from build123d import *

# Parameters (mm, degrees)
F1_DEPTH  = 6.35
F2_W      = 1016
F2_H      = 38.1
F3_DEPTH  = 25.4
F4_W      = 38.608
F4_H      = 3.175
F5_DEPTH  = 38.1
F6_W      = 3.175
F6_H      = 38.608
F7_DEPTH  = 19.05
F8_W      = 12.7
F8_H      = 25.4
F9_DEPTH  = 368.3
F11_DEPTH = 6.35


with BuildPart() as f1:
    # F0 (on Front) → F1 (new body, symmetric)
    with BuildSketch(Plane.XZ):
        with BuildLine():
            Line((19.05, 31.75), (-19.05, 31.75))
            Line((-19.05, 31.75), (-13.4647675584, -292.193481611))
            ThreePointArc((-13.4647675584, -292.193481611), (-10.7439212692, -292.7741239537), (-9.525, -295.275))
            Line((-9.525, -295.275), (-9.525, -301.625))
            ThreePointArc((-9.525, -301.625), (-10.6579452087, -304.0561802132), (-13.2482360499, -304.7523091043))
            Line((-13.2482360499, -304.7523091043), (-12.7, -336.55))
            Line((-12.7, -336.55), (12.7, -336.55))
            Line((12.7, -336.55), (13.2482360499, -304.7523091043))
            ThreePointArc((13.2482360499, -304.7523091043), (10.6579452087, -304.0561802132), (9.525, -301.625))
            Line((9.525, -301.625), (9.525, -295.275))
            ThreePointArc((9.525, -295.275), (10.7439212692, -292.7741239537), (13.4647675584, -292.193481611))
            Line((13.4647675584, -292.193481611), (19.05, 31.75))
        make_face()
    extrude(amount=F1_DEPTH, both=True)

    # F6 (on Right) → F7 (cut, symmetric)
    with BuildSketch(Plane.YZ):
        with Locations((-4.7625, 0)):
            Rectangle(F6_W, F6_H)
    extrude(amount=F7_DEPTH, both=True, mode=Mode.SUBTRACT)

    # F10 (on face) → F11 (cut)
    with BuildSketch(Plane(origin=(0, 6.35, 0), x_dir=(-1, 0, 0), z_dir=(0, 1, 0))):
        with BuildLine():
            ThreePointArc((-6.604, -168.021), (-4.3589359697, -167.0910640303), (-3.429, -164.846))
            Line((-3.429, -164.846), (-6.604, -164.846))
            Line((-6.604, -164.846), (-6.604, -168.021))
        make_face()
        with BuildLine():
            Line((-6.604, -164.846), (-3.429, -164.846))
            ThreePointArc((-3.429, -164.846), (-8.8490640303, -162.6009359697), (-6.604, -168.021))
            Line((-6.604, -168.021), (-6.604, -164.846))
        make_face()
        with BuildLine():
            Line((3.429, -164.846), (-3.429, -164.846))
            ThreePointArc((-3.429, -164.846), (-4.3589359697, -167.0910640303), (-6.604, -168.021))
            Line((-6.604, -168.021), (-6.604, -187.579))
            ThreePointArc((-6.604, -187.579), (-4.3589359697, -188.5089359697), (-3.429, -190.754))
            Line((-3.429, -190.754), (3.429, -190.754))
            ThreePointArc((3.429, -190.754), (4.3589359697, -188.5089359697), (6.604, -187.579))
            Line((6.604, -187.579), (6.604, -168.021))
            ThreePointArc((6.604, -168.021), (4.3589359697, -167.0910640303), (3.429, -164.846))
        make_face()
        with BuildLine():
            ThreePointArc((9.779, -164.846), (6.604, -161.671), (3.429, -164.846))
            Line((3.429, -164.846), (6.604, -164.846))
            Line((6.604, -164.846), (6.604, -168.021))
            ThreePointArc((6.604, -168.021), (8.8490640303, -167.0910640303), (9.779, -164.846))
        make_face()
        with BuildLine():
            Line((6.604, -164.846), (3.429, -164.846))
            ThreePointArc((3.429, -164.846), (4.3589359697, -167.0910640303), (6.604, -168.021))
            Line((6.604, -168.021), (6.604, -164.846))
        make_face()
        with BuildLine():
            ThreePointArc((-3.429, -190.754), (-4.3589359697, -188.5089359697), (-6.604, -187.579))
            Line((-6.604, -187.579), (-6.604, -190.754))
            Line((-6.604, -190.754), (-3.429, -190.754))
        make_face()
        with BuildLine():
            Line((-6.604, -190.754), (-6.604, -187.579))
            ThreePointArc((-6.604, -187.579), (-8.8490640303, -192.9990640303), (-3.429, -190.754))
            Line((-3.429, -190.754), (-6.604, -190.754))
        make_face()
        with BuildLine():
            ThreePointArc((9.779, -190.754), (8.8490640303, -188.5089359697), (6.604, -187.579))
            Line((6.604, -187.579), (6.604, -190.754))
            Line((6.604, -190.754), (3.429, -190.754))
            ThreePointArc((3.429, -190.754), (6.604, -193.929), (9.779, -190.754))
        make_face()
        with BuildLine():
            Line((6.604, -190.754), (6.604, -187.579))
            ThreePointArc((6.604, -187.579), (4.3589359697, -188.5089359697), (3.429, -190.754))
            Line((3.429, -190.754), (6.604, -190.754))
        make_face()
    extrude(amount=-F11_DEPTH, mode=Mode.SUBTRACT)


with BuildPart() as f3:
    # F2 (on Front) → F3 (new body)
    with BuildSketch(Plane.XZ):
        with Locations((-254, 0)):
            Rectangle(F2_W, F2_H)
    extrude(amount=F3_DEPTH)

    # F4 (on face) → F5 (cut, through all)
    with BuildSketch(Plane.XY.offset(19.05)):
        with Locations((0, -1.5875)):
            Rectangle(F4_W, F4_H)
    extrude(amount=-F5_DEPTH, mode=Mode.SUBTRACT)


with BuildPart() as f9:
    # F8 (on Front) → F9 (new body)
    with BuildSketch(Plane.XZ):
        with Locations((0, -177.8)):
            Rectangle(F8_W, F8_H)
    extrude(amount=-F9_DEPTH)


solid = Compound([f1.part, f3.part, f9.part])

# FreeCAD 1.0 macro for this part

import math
import FreeCAD as App
import Part
import Sketcher
from FreeCAD import Vector
Q = App.Units.Quantity


def add_polygon(sketch, points):
    """Adds a closed chain of lines whose ends are joined by coincident constraints."""
    first, n = sketch.GeometryCount, len(points)
    for a, b in zip(points, points[1:] + points[:1]):
        sketch.addGeometry(Part.LineSegment(App.Vector(*a, 0), App.Vector(*b, 0)), False)
    for i in range(n):
        sketch.addConstraint(Sketcher.Constraint("Coincident", first + i, 2, first + (i + 1) % n, 1))

doc = App.newDocument("Part")
params = doc.addObject("Spreadsheet::Sheet", "Params")
for row, (alias, value) in enumerate([
    ("sketch1_width", "1 in"),
    ("sketch1_width2", "1.5 in"),
    ("sketch1_radius", "0.125 in"),
    ("sketch1_height", "0.25 in"),
    ("pad1_length", "0.5 in"),
    ("sketch2_height", "1.52 in"),
    ("sketch2_width", "0.125 in"),
    ("pocket1_length", "1.5 in"),
    ("sketch3_radius", "0.125 in"),
    ("sketch3_width", "0.27 in"),
    ("sketch3_height", "0.77 in"),
    ("pocket2_length", "0.25 in"),
    ("sketch4_width", "40 in"),
    ("sketch4_height", "1.5 in"),
    ("pad2_length", "1 in"),
    ("sketch5_width", "1.52 in"),
    ("sketch5_height", "0.125 in"),
    ("sketch6_height", "1 in"),
    ("sketch6_width", "0.5 in"),
    ("pad3_length", "14.5 in"),
], start=1):
    params.set(f"A{row}", alias)
    params.set(f"B{row}", "=" + value)
    params.setAlias(f"B{row}", alias)

body = doc.addObject("PartDesign::Body", "Body")

# Sketch on XZ plane
sketch1 = body.newObject("Sketcher::SketchObject", "Sketch")
sketch1.AttachmentSupport = (doc.getObject("XZ_Plane"), [""])
sketch1.MapMode = "FlatFace"
sketch1.addGeometry(Part.LineSegment(Vector(19.1, 31.8, 0), Vector(-19.1, 31.8, 0)), False)
sketch1.addGeometry(Part.LineSegment(Vector(-19.1, 31.8, 0), Vector(-13.5, -292.2, 0)), False)
sketch1.addGeometry(Part.ArcOfCircle(Part.Circle(Vector(-12.7, -295.3, 0), Vector(0, 0, 1), 3.2), math.radians(0), math.radians(104)), False)
sketch1.addGeometry(Part.LineSegment(Vector(-9.5, -295.3, 0), Vector(-9.5, -301.6, 0)), False)
sketch1.addGeometry(Part.ArcOfCircle(Part.Circle(Vector(-12.7, -301.6, 0), Vector(0, 0, 1), 3.2), math.radians(-100), math.radians(0)), False)
sketch1.addGeometry(Part.LineSegment(Vector(-13.2, -304.8, 0), Vector(-12.7, -336.6, 0)), False)
sketch1.addGeometry(Part.LineSegment(Vector(-12.7, -336.6, 0), Vector(12.7, -336.6, 0)), False)
sketch1.addGeometry(Part.LineSegment(Vector(12.7, -336.6, 0), Vector(13.2, -304.8, 0)), False)
sketch1.addGeometry(Part.ArcOfCircle(Part.Circle(Vector(12.7, -301.6, 0), Vector(0, 0, 1), 3.2), math.radians(180), math.radians(280)), False)
sketch1.addGeometry(Part.LineSegment(Vector(9.5, -301.6, 0), Vector(9.5, -295.3, 0)), False)
sketch1.addGeometry(Part.ArcOfCircle(Part.Circle(Vector(12.7, -295.3, 0), Vector(0, 0, 1), 3.2), math.radians(76), math.radians(180)), False)
sketch1.addGeometry(Part.LineSegment(Vector(13.5, -292.2, 0), Vector(19.1, 31.8, 0)), False)
sketch1.addConstraint(Sketcher.Constraint("Coincident", 0, 2, 1, 1))
sketch1.addConstraint(Sketcher.Constraint("Coincident", 1, 2, 2, 2))
sketch1.addConstraint(Sketcher.Constraint("Tangent", 2, 1, 3, 1))
sketch1.addConstraint(Sketcher.Constraint("Tangent", 3, 2, 4, 2))
sketch1.addConstraint(Sketcher.Constraint("Coincident", 4, 1, 5, 1))
sketch1.addConstraint(Sketcher.Constraint("Coincident", 5, 2, 6, 1))
sketch1.addConstraint(Sketcher.Constraint("Coincident", 6, 2, 7, 1))
sketch1.addConstraint(Sketcher.Constraint("Coincident", 7, 2, 8, 2))
sketch1.addConstraint(Sketcher.Constraint("Tangent", 8, 1, 9, 1))
sketch1.addConstraint(Sketcher.Constraint("Tangent", 9, 2, 10, 2))
sketch1.addConstraint(Sketcher.Constraint("Coincident", 10, 1, 11, 1))
sketch1.addConstraint(Sketcher.Constraint("Coincident", 11, 2, 0, 1))
sketch1.addConstraint(Sketcher.Constraint("Horizontal", 0))
sketch1.addConstraint(Sketcher.Constraint("Vertical", 3))
sketch1.addConstraint(Sketcher.Constraint("Horizontal", 6))
sketch1.addConstraint(Sketcher.Constraint("Vertical", 9))
sketch1.addConstraint(Sketcher.Constraint("Equal", 2, 4))
sketch1.addConstraint(Sketcher.Constraint("Equal", 4, 8))
sketch1.addConstraint(Sketcher.Constraint("Equal", 8, 10))
sketch1.addConstraint(Sketcher.Constraint("Symmetric", 4, 3, 8, 3, -2))
sketch1.addConstraint(Sketcher.Constraint("Symmetric", 1, 2, 10, 1, -2))
sketch1.addConstraint(Sketcher.Constraint("Parallel", 1, 5))
sketch1.addConstraint(Sketcher.Constraint("Parallel", 7, 11))
sketch1.addConstraint(Sketcher.Constraint("Horizontal", 4, 1, 7, 2))
sketch1.addConstraint(Sketcher.Constraint("Vertical", 4, 3, 5, 2))
sketch1.addConstraint(Sketcher.Constraint("Vertical", 10, 3, 6, 2))
sketch1.addConstraint(Sketcher.Constraint("DistanceX", 6, 1, 6, 2, Q("1 in")))
sketch1.addConstraint(Sketcher.Constraint("DistanceX", 0, 2, 0, 1, Q("1.5 in")))
sketch1.addConstraint(Sketcher.Constraint("Radius", 2, Q("0.125 in")))
sketch1.addConstraint(Sketcher.Constraint("DistanceY", 3, 2, 3, 1, Q("0.25 in")))
sketch1.addConstraint(Sketcher.Constraint("DistanceY", -1, 1, 0, 2, Q("1.25 in")))
sketch1.addConstraint(Sketcher.Constraint("DistanceY", 5, 2, -1, 1, Q("13.25 in")))
sketch1.addConstraint(Sketcher.Constraint("DistanceY", 2, 3, -1, 1, Q("11.625 in")))
sketch1.addConstraint(Sketcher.Constraint("DistanceY", 1, 2, -1, 1, Q("292.193482 mm")))
sketch1.setExpression("Constraints[26]", "Params.sketch1_width")
sketch1.setExpression("Constraints[27]", "Params.sketch1_width2")
sketch1.setExpression("Constraints[28]", "Params.sketch1_radius")
sketch1.setExpression("Constraints[29]", "Params.sketch1_height")
pad1 = body.newObject("PartDesign::Pad", "Pad")
pad1.Profile = sketch1
pad1.setExpression("Length", "Params.pad1_length")
pad1.Midplane = True

# Sketch on YZ plane
sketch2 = body.newObject("Sketcher::SketchObject", "Sketch001")
sketch2.AttachmentSupport = (doc.getObject("YZ_Plane"), [""])
sketch2.MapMode = "FlatFace"
add_polygon(sketch2, [(-6.3, 19.3), (-6.3, -19.3), (-3.2, -19.3), (-3.2, 19.3)])  # lines 0-3
sketch2.addConstraint(Sketcher.Constraint("Vertical", 0))
sketch2.addConstraint(Sketcher.Constraint("Horizontal", 1))
sketch2.addConstraint(Sketcher.Constraint("Vertical", 2))
sketch2.addConstraint(Sketcher.Constraint("Horizontal", 3))
sketch2.addConstraint(Sketcher.Constraint("DistanceY", 0, 2, 0, 1, Q("1.52 in")))
sketch2.addConstraint(Sketcher.Constraint("DistanceX", 1, 1, 1, 2, Q("0.125 in")))
sketch2.addConstraint(Sketcher.Constraint("DistanceX", 0, 2, -1, 1, Q("0.25 in")))
sketch2.addConstraint(Sketcher.Constraint("DistanceY", 0, 2, -1, 1, Q("0.76 in")))
sketch2.setExpression("Constraints[8]", "Params.sketch2_height")
sketch2.setExpression("Constraints[9]", "Params.sketch2_width")
pocket1 = body.newObject("PartDesign::Pocket", "Pocket")
pocket1.Profile = sketch2
pocket1.setExpression("Length", "Params.pocket1_length")
pocket1.Midplane = True

# Sketch on XZ plane
sketch3 = body.newObject("Sketcher::SketchObject", "Sketch002")
sketch3.AttachmentSupport = (doc.getObject("XZ_Plane"), [""])
sketch3.MapMode = "FlatFace"
sketch3.AttachmentOffset = App.Placement(Vector(0, 0, -0.25 * 25.4), App.Rotation())
sketch3.addGeometry(Part.ArcOfCircle(Part.Circle(Vector(6.6, -164.8, 0), Vector(0, 0, 1), 3.2), math.radians(-90), math.radians(180)), False)
sketch3.addGeometry(Part.LineSegment(Vector(6.6, -168, 0), Vector(6.6, -187.6, 0)), False)
sketch3.addGeometry(Part.ArcOfCircle(Part.Circle(Vector(6.6, -190.8, 0), Vector(0, 0, 1), 3.2), math.radians(180), math.radians(450)), False)
sketch3.addGeometry(Part.LineSegment(Vector(3.4, -190.8, 0), Vector(-3.4, -190.8, 0)), False)
sketch3.addGeometry(Part.ArcOfCircle(Part.Circle(Vector(-6.6, -190.8, 0), Vector(0, 0, 1), 3.2), math.radians(180), math.radians(360)), False)
sketch3.addGeometry(Part.ArcOfCircle(Part.Circle(Vector(-6.6, -190.8, 0), Vector(0, 0, 1), 3.2), math.radians(90), math.radians(180)), False)
sketch3.addGeometry(Part.LineSegment(Vector(-6.6, -187.6, 0), Vector(-6.6, -168, 0)), False)
sketch3.addGeometry(Part.ArcOfCircle(Part.Circle(Vector(-6.6, -164.8, 0), Vector(0, 0, 1), 3.2), math.radians(180), math.radians(270)), False)
sketch3.addGeometry(Part.ArcOfCircle(Part.Circle(Vector(-6.6, -164.8, 0), Vector(0, 0, 1), 3.2), math.radians(0), math.radians(180)), False)
sketch3.addGeometry(Part.LineSegment(Vector(-3.4, -164.8, 0), Vector(3.4, -164.8, 0)), False)
sketch3.addConstraint(Sketcher.Constraint("Coincident", 0, 1, 1, 1))
sketch3.addConstraint(Sketcher.Constraint("Coincident", 1, 2, 2, 2))
sketch3.addConstraint(Sketcher.Constraint("Coincident", 2, 1, 3, 1))
sketch3.addConstraint(Sketcher.Constraint("Coincident", 3, 2, 4, 2))
sketch3.addConstraint(Sketcher.Constraint("Tangent", 4, 1, 5, 2))
sketch3.addConstraint(Sketcher.Constraint("Coincident", 5, 1, 6, 1))
sketch3.addConstraint(Sketcher.Constraint("Coincident", 6, 2, 7, 2))
sketch3.addConstraint(Sketcher.Constraint("Tangent", 7, 1, 8, 2))
sketch3.addConstraint(Sketcher.Constraint("Coincident", 8, 1, 9, 1))
sketch3.addConstraint(Sketcher.Constraint("Coincident", 9, 2, 0, 2))
sketch3.addConstraint(Sketcher.Constraint("Vertical", 1))
sketch3.addConstraint(Sketcher.Constraint("Horizontal", 3))
sketch3.addConstraint(Sketcher.Constraint("Vertical", 6))
sketch3.addConstraint(Sketcher.Constraint("Horizontal", 9))
sketch3.addConstraint(Sketcher.Constraint("Equal", 0, 2))
sketch3.addConstraint(Sketcher.Constraint("Equal", 2, 4))
sketch3.addConstraint(Sketcher.Constraint("Equal", 4, 5))
sketch3.addConstraint(Sketcher.Constraint("Equal", 5, 7))
sketch3.addConstraint(Sketcher.Constraint("Equal", 7, 8))
sketch3.addConstraint(Sketcher.Constraint("Symmetric", 2, 3, 4, 3, -2))
sketch3.addConstraint(Sketcher.Constraint("Symmetric", 0, 3, 7, 3, -2))
sketch3.addConstraint(Sketcher.Constraint("Horizontal", 5, 3, 2, 1))
sketch3.addConstraint(Sketcher.Constraint("Horizontal", 3, 2, 4, 1))
sketch3.addConstraint(Sketcher.Constraint("Horizontal", 8, 3, 7, 1))
sketch3.addConstraint(Sketcher.Constraint("Horizontal", 7, 1, 8, 1))
sketch3.addConstraint(Sketcher.Constraint("Vertical", 0, 3, 2, 3))
sketch3.addConstraint(Sketcher.Constraint("Vertical", 2, 3, 0, 1))
sketch3.addConstraint(Sketcher.Constraint("Vertical", 8, 3, 5, 1))
sketch3.addConstraint(Sketcher.Constraint("Radius", 0, Q("0.125 in")))
sketch3.addConstraint(Sketcher.Constraint("DistanceX", 3, 2, 3, 1, Q("0.27 in")))
sketch3.addConstraint(Sketcher.Constraint("DistanceY", 1, 2, 1, 1, Q("0.77 in")))
sketch3.addConstraint(Sketcher.Constraint("DistanceY", 0, 3, -1, 1, Q("6.49 in")))
sketch3.setExpression("Constraints[28]", "Params.sketch3_radius")
sketch3.setExpression("Constraints[29]", "Params.sketch3_width")
sketch3.setExpression("Constraints[30]", "Params.sketch3_height")
pocket2 = body.newObject("PartDesign::Pocket", "Pocket001")
pocket2.Profile = sketch3
pocket2.setExpression("Length", "Params.pocket2_length")
pocket2.Reversed = True
body2 = doc.addObject("PartDesign::Body", "Body001")

# Sketch on XZ plane
sketch4 = body2.newObject("Sketcher::SketchObject", "Sketch003")
sketch4.AttachmentSupport = (doc.getObject("XZ_Plane001"), [""])
sketch4.MapMode = "FlatFace"
add_polygon(sketch4, [(-762, 19), (-762, -19), (254, -19), (254, 19)])  # lines 0-3
sketch4.addConstraint(Sketcher.Constraint("Vertical", 0))
sketch4.addConstraint(Sketcher.Constraint("Horizontal", 1))
sketch4.addConstraint(Sketcher.Constraint("Vertical", 2))
sketch4.addConstraint(Sketcher.Constraint("Horizontal", 3))
sketch4.addConstraint(Sketcher.Constraint("DistanceX", 1, 1, 1, 2, Q("40 in")))
sketch4.addConstraint(Sketcher.Constraint("DistanceY", 0, 2, 0, 1, Q("1.5 in")))
sketch4.addConstraint(Sketcher.Constraint("DistanceX", 0, 2, -1, 1, Q("30 in")))
sketch4.addConstraint(Sketcher.Constraint("DistanceY", 0, 2, -1, 1, Q("0.75 in")))
sketch4.setExpression("Constraints[8]", "Params.sketch4_width")
sketch4.setExpression("Constraints[9]", "Params.sketch4_height")
pad2 = body2.newObject("PartDesign::Pad", "Pad001")
pad2.Profile = sketch4
pad2.setExpression("Length", "Params.pad2_length")

# Sketch on XY plane
sketch5 = body2.newObject("Sketcher::SketchObject", "Sketch004")
sketch5.AttachmentSupport = (doc.getObject("XY_Plane001"), [""])
sketch5.MapMode = "FlatFace"
sketch5.AttachmentOffset = App.Placement(Vector(0, 0, 0.75 * 25.4), App.Rotation())
add_polygon(sketch5, [(-19.3, 0), (-19.3, -3.2), (19.3, -3.2), (19.3, 0)])  # lines 0-3
sketch5.addConstraint(Sketcher.Constraint("Vertical", 0))
sketch5.addConstraint(Sketcher.Constraint("Horizontal", 1))
sketch5.addConstraint(Sketcher.Constraint("Vertical", 2))
sketch5.addConstraint(Sketcher.Constraint("Horizontal", 3))
sketch5.addConstraint(Sketcher.Constraint("Symmetric", 2, 2, 3, 2, -1, 1))
sketch5.addConstraint(Sketcher.Constraint("DistanceX", 1, 1, 1, 2, Q("1.52 in")))
sketch5.addConstraint(Sketcher.Constraint("DistanceY", 0, 2, 0, 1, Q("0.125 in")))
sketch5.setExpression("Constraints[9]", "Params.sketch5_width")
sketch5.setExpression("Constraints[10]", "Params.sketch5_height")
pocket3 = body2.newObject("PartDesign::Pocket", "Pocket002")
pocket3.Profile = sketch5
pocket3.Type = "ThroughAll"
body3 = doc.addObject("PartDesign::Body", "Body002")

# Sketch on XZ plane
sketch6 = body3.newObject("Sketcher::SketchObject", "Sketch005")
sketch6.AttachmentSupport = (doc.getObject("XZ_Plane002"), [""])
sketch6.MapMode = "FlatFace"
add_polygon(sketch6, [(-6, -165), (-6, -190), (6, -190), (6, -165)])  # lines 0-3
sketch6.addConstraint(Sketcher.Constraint("Vertical", 0))
sketch6.addConstraint(Sketcher.Constraint("Horizontal", 1))
sketch6.addConstraint(Sketcher.Constraint("Vertical", 2))
sketch6.addConstraint(Sketcher.Constraint("Horizontal", 3))
sketch6.addConstraint(Sketcher.Constraint("DistanceY", 0, 2, 0, 1, Q("1 in")))
sketch6.addConstraint(Sketcher.Constraint("DistanceX", 1, 1, 1, 2, Q("0.5 in")))
sketch6.addConstraint(Sketcher.Constraint("DistanceY", 0, 2, -1, 1, Q("7.5 in")))
sketch6.addConstraint(Sketcher.Constraint("DistanceX", 0, 2, -1, 1, Q("0.25 in")))
sketch6.setExpression("Constraints[8]", "Params.sketch6_height")
sketch6.setExpression("Constraints[9]", "Params.sketch6_width")
pad3 = body3.newObject("PartDesign::Pad", "Pad002")
pad3.Profile = sketch6
pad3.setExpression("Length", "Params.pad3_length")
pad3.Reversed = True

doc.recompute()
